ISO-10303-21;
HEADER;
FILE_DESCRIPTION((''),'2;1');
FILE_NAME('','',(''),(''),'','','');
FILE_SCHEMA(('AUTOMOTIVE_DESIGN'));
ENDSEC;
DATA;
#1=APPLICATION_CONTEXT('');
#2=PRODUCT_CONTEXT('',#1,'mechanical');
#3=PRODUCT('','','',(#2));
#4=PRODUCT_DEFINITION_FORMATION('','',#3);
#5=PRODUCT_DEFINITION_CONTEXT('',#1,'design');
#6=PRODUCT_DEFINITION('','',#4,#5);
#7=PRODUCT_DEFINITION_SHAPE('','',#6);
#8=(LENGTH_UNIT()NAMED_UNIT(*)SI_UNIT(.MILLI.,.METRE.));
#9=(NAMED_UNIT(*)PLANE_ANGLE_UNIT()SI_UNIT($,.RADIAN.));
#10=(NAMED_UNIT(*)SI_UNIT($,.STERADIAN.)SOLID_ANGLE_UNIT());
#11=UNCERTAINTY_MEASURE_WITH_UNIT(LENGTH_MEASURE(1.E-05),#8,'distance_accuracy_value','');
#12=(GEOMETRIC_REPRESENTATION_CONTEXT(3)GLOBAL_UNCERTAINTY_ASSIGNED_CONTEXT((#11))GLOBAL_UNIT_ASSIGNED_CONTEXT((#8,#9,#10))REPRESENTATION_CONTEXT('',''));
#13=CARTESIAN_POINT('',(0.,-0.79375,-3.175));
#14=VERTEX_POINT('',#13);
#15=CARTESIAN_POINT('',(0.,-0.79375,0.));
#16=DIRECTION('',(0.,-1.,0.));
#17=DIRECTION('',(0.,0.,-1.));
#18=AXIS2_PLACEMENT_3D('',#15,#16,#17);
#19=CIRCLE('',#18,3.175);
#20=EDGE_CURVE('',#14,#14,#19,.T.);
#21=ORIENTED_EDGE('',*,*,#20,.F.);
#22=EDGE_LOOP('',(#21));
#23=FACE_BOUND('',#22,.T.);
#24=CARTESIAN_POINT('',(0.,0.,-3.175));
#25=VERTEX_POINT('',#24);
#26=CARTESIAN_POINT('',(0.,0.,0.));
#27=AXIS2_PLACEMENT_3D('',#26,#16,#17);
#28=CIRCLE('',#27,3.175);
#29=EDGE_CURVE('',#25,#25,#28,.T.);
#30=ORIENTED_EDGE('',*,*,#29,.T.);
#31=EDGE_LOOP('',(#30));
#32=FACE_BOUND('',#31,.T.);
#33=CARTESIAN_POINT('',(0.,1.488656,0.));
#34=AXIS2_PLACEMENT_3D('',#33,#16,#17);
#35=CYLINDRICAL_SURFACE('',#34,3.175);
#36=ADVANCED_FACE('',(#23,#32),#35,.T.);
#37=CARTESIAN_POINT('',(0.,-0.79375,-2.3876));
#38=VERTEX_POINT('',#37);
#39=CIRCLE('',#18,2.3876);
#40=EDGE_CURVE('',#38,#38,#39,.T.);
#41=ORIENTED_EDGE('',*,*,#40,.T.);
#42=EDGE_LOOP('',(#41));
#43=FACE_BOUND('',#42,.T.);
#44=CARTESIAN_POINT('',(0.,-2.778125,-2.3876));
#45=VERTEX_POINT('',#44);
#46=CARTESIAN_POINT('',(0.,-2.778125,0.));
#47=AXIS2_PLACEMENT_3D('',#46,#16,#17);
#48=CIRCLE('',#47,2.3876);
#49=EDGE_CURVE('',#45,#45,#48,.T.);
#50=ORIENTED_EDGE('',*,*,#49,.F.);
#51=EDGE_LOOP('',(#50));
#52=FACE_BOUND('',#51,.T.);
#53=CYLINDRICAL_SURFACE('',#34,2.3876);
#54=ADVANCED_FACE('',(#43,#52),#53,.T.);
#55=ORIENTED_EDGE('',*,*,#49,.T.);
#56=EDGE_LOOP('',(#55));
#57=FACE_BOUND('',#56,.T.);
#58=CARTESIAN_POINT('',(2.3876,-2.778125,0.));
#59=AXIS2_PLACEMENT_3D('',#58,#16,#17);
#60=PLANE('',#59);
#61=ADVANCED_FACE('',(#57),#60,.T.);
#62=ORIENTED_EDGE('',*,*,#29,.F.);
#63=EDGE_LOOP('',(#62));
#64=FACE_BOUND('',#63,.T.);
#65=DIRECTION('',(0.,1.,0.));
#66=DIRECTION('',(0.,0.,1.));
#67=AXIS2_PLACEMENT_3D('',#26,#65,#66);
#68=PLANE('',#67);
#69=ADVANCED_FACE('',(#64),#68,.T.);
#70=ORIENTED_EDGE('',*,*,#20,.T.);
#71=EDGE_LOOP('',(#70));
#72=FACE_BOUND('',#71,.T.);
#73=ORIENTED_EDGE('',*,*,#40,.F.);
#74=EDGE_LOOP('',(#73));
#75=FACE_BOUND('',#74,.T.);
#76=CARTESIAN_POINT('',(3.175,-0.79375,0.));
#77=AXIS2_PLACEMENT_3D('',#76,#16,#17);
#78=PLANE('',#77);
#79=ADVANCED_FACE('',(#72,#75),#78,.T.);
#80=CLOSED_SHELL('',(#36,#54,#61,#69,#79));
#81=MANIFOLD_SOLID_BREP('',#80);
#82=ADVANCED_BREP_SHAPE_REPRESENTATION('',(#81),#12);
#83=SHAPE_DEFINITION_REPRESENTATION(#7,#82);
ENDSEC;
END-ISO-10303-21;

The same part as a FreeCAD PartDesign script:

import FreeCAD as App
import Part
import Sketcher
from FreeCAD import Vector
Q = App.Units.Quantity


def add_polygon(sketch, points):
    """Adds a closed chain of lines whose ends are joined by coincident constraints."""
    first, n = sketch.GeometryCount, len(points)
    for a, b in zip(points, points[1:] + points[:1]):
        sketch.addGeometry(Part.LineSegment(App.Vector(*a, 0), App.Vector(*b, 0)), False)
    for i in range(n):
        sketch.addConstraint(Sketcher.Constraint("Coincident", first + i, 2, first + (i + 1) % n, 1))

doc = App.newDocument("Part")
body = doc.addObject("PartDesign::Body", "Body")

# Sketch on XY plane
sketch1 = body.newObject("Sketcher::SketchObject", "Sketch")
sketch1.AttachmentSupport = (doc.getObject("XY_Plane"), [""])
sketch1.MapMode = "FlatFace"
add_polygon(sketch1, [(3.175, 0), (0, 0), (0, -2.778125), (2.3876, -2.778125), (2.3876, -0.79375), (3.175, -0.79375)])  # lines 0-5
sketch1.addConstraint(Sketcher.Constraint("Horizontal", 0))
sketch1.addConstraint(Sketcher.Constraint("Vertical", 1))
sketch1.addConstraint(Sketcher.Constraint("Horizontal", 2))
sketch1.addConstraint(Sketcher.Constraint("Vertical", 3))
sketch1.addConstraint(Sketcher.Constraint("Horizontal", 4))
sketch1.addConstraint(Sketcher.Constraint("Vertical", 5))
sketch1.addConstraint(Sketcher.Constraint("Coincident", 0, 2, -1, 1))
sketch1.addConstraint(Sketcher.Constraint("DistanceX", 0, 2, 0, 1, Q("0.125 in")))
sketch1.addConstraint(Sketcher.Constraint("DistanceX", 2, 1, 2, 2, Q("0.094 in")))
sketch1.addConstraint(Sketcher.Constraint("DistanceY", 1, 2, 1, 1, Q("0.109375 in")))
sketch1.addConstraint(Sketcher.Constraint("DistanceY", 3, 1, 3, 2, Q("0.078125 in")))
revolution = body.newObject("PartDesign::Revolution", "Revolution")
revolution.Profile = sketch1
revolution.ReferenceAxis = (sketch1, ["V_Axis"])
revolution.Angle = 360

doc.recompute()
